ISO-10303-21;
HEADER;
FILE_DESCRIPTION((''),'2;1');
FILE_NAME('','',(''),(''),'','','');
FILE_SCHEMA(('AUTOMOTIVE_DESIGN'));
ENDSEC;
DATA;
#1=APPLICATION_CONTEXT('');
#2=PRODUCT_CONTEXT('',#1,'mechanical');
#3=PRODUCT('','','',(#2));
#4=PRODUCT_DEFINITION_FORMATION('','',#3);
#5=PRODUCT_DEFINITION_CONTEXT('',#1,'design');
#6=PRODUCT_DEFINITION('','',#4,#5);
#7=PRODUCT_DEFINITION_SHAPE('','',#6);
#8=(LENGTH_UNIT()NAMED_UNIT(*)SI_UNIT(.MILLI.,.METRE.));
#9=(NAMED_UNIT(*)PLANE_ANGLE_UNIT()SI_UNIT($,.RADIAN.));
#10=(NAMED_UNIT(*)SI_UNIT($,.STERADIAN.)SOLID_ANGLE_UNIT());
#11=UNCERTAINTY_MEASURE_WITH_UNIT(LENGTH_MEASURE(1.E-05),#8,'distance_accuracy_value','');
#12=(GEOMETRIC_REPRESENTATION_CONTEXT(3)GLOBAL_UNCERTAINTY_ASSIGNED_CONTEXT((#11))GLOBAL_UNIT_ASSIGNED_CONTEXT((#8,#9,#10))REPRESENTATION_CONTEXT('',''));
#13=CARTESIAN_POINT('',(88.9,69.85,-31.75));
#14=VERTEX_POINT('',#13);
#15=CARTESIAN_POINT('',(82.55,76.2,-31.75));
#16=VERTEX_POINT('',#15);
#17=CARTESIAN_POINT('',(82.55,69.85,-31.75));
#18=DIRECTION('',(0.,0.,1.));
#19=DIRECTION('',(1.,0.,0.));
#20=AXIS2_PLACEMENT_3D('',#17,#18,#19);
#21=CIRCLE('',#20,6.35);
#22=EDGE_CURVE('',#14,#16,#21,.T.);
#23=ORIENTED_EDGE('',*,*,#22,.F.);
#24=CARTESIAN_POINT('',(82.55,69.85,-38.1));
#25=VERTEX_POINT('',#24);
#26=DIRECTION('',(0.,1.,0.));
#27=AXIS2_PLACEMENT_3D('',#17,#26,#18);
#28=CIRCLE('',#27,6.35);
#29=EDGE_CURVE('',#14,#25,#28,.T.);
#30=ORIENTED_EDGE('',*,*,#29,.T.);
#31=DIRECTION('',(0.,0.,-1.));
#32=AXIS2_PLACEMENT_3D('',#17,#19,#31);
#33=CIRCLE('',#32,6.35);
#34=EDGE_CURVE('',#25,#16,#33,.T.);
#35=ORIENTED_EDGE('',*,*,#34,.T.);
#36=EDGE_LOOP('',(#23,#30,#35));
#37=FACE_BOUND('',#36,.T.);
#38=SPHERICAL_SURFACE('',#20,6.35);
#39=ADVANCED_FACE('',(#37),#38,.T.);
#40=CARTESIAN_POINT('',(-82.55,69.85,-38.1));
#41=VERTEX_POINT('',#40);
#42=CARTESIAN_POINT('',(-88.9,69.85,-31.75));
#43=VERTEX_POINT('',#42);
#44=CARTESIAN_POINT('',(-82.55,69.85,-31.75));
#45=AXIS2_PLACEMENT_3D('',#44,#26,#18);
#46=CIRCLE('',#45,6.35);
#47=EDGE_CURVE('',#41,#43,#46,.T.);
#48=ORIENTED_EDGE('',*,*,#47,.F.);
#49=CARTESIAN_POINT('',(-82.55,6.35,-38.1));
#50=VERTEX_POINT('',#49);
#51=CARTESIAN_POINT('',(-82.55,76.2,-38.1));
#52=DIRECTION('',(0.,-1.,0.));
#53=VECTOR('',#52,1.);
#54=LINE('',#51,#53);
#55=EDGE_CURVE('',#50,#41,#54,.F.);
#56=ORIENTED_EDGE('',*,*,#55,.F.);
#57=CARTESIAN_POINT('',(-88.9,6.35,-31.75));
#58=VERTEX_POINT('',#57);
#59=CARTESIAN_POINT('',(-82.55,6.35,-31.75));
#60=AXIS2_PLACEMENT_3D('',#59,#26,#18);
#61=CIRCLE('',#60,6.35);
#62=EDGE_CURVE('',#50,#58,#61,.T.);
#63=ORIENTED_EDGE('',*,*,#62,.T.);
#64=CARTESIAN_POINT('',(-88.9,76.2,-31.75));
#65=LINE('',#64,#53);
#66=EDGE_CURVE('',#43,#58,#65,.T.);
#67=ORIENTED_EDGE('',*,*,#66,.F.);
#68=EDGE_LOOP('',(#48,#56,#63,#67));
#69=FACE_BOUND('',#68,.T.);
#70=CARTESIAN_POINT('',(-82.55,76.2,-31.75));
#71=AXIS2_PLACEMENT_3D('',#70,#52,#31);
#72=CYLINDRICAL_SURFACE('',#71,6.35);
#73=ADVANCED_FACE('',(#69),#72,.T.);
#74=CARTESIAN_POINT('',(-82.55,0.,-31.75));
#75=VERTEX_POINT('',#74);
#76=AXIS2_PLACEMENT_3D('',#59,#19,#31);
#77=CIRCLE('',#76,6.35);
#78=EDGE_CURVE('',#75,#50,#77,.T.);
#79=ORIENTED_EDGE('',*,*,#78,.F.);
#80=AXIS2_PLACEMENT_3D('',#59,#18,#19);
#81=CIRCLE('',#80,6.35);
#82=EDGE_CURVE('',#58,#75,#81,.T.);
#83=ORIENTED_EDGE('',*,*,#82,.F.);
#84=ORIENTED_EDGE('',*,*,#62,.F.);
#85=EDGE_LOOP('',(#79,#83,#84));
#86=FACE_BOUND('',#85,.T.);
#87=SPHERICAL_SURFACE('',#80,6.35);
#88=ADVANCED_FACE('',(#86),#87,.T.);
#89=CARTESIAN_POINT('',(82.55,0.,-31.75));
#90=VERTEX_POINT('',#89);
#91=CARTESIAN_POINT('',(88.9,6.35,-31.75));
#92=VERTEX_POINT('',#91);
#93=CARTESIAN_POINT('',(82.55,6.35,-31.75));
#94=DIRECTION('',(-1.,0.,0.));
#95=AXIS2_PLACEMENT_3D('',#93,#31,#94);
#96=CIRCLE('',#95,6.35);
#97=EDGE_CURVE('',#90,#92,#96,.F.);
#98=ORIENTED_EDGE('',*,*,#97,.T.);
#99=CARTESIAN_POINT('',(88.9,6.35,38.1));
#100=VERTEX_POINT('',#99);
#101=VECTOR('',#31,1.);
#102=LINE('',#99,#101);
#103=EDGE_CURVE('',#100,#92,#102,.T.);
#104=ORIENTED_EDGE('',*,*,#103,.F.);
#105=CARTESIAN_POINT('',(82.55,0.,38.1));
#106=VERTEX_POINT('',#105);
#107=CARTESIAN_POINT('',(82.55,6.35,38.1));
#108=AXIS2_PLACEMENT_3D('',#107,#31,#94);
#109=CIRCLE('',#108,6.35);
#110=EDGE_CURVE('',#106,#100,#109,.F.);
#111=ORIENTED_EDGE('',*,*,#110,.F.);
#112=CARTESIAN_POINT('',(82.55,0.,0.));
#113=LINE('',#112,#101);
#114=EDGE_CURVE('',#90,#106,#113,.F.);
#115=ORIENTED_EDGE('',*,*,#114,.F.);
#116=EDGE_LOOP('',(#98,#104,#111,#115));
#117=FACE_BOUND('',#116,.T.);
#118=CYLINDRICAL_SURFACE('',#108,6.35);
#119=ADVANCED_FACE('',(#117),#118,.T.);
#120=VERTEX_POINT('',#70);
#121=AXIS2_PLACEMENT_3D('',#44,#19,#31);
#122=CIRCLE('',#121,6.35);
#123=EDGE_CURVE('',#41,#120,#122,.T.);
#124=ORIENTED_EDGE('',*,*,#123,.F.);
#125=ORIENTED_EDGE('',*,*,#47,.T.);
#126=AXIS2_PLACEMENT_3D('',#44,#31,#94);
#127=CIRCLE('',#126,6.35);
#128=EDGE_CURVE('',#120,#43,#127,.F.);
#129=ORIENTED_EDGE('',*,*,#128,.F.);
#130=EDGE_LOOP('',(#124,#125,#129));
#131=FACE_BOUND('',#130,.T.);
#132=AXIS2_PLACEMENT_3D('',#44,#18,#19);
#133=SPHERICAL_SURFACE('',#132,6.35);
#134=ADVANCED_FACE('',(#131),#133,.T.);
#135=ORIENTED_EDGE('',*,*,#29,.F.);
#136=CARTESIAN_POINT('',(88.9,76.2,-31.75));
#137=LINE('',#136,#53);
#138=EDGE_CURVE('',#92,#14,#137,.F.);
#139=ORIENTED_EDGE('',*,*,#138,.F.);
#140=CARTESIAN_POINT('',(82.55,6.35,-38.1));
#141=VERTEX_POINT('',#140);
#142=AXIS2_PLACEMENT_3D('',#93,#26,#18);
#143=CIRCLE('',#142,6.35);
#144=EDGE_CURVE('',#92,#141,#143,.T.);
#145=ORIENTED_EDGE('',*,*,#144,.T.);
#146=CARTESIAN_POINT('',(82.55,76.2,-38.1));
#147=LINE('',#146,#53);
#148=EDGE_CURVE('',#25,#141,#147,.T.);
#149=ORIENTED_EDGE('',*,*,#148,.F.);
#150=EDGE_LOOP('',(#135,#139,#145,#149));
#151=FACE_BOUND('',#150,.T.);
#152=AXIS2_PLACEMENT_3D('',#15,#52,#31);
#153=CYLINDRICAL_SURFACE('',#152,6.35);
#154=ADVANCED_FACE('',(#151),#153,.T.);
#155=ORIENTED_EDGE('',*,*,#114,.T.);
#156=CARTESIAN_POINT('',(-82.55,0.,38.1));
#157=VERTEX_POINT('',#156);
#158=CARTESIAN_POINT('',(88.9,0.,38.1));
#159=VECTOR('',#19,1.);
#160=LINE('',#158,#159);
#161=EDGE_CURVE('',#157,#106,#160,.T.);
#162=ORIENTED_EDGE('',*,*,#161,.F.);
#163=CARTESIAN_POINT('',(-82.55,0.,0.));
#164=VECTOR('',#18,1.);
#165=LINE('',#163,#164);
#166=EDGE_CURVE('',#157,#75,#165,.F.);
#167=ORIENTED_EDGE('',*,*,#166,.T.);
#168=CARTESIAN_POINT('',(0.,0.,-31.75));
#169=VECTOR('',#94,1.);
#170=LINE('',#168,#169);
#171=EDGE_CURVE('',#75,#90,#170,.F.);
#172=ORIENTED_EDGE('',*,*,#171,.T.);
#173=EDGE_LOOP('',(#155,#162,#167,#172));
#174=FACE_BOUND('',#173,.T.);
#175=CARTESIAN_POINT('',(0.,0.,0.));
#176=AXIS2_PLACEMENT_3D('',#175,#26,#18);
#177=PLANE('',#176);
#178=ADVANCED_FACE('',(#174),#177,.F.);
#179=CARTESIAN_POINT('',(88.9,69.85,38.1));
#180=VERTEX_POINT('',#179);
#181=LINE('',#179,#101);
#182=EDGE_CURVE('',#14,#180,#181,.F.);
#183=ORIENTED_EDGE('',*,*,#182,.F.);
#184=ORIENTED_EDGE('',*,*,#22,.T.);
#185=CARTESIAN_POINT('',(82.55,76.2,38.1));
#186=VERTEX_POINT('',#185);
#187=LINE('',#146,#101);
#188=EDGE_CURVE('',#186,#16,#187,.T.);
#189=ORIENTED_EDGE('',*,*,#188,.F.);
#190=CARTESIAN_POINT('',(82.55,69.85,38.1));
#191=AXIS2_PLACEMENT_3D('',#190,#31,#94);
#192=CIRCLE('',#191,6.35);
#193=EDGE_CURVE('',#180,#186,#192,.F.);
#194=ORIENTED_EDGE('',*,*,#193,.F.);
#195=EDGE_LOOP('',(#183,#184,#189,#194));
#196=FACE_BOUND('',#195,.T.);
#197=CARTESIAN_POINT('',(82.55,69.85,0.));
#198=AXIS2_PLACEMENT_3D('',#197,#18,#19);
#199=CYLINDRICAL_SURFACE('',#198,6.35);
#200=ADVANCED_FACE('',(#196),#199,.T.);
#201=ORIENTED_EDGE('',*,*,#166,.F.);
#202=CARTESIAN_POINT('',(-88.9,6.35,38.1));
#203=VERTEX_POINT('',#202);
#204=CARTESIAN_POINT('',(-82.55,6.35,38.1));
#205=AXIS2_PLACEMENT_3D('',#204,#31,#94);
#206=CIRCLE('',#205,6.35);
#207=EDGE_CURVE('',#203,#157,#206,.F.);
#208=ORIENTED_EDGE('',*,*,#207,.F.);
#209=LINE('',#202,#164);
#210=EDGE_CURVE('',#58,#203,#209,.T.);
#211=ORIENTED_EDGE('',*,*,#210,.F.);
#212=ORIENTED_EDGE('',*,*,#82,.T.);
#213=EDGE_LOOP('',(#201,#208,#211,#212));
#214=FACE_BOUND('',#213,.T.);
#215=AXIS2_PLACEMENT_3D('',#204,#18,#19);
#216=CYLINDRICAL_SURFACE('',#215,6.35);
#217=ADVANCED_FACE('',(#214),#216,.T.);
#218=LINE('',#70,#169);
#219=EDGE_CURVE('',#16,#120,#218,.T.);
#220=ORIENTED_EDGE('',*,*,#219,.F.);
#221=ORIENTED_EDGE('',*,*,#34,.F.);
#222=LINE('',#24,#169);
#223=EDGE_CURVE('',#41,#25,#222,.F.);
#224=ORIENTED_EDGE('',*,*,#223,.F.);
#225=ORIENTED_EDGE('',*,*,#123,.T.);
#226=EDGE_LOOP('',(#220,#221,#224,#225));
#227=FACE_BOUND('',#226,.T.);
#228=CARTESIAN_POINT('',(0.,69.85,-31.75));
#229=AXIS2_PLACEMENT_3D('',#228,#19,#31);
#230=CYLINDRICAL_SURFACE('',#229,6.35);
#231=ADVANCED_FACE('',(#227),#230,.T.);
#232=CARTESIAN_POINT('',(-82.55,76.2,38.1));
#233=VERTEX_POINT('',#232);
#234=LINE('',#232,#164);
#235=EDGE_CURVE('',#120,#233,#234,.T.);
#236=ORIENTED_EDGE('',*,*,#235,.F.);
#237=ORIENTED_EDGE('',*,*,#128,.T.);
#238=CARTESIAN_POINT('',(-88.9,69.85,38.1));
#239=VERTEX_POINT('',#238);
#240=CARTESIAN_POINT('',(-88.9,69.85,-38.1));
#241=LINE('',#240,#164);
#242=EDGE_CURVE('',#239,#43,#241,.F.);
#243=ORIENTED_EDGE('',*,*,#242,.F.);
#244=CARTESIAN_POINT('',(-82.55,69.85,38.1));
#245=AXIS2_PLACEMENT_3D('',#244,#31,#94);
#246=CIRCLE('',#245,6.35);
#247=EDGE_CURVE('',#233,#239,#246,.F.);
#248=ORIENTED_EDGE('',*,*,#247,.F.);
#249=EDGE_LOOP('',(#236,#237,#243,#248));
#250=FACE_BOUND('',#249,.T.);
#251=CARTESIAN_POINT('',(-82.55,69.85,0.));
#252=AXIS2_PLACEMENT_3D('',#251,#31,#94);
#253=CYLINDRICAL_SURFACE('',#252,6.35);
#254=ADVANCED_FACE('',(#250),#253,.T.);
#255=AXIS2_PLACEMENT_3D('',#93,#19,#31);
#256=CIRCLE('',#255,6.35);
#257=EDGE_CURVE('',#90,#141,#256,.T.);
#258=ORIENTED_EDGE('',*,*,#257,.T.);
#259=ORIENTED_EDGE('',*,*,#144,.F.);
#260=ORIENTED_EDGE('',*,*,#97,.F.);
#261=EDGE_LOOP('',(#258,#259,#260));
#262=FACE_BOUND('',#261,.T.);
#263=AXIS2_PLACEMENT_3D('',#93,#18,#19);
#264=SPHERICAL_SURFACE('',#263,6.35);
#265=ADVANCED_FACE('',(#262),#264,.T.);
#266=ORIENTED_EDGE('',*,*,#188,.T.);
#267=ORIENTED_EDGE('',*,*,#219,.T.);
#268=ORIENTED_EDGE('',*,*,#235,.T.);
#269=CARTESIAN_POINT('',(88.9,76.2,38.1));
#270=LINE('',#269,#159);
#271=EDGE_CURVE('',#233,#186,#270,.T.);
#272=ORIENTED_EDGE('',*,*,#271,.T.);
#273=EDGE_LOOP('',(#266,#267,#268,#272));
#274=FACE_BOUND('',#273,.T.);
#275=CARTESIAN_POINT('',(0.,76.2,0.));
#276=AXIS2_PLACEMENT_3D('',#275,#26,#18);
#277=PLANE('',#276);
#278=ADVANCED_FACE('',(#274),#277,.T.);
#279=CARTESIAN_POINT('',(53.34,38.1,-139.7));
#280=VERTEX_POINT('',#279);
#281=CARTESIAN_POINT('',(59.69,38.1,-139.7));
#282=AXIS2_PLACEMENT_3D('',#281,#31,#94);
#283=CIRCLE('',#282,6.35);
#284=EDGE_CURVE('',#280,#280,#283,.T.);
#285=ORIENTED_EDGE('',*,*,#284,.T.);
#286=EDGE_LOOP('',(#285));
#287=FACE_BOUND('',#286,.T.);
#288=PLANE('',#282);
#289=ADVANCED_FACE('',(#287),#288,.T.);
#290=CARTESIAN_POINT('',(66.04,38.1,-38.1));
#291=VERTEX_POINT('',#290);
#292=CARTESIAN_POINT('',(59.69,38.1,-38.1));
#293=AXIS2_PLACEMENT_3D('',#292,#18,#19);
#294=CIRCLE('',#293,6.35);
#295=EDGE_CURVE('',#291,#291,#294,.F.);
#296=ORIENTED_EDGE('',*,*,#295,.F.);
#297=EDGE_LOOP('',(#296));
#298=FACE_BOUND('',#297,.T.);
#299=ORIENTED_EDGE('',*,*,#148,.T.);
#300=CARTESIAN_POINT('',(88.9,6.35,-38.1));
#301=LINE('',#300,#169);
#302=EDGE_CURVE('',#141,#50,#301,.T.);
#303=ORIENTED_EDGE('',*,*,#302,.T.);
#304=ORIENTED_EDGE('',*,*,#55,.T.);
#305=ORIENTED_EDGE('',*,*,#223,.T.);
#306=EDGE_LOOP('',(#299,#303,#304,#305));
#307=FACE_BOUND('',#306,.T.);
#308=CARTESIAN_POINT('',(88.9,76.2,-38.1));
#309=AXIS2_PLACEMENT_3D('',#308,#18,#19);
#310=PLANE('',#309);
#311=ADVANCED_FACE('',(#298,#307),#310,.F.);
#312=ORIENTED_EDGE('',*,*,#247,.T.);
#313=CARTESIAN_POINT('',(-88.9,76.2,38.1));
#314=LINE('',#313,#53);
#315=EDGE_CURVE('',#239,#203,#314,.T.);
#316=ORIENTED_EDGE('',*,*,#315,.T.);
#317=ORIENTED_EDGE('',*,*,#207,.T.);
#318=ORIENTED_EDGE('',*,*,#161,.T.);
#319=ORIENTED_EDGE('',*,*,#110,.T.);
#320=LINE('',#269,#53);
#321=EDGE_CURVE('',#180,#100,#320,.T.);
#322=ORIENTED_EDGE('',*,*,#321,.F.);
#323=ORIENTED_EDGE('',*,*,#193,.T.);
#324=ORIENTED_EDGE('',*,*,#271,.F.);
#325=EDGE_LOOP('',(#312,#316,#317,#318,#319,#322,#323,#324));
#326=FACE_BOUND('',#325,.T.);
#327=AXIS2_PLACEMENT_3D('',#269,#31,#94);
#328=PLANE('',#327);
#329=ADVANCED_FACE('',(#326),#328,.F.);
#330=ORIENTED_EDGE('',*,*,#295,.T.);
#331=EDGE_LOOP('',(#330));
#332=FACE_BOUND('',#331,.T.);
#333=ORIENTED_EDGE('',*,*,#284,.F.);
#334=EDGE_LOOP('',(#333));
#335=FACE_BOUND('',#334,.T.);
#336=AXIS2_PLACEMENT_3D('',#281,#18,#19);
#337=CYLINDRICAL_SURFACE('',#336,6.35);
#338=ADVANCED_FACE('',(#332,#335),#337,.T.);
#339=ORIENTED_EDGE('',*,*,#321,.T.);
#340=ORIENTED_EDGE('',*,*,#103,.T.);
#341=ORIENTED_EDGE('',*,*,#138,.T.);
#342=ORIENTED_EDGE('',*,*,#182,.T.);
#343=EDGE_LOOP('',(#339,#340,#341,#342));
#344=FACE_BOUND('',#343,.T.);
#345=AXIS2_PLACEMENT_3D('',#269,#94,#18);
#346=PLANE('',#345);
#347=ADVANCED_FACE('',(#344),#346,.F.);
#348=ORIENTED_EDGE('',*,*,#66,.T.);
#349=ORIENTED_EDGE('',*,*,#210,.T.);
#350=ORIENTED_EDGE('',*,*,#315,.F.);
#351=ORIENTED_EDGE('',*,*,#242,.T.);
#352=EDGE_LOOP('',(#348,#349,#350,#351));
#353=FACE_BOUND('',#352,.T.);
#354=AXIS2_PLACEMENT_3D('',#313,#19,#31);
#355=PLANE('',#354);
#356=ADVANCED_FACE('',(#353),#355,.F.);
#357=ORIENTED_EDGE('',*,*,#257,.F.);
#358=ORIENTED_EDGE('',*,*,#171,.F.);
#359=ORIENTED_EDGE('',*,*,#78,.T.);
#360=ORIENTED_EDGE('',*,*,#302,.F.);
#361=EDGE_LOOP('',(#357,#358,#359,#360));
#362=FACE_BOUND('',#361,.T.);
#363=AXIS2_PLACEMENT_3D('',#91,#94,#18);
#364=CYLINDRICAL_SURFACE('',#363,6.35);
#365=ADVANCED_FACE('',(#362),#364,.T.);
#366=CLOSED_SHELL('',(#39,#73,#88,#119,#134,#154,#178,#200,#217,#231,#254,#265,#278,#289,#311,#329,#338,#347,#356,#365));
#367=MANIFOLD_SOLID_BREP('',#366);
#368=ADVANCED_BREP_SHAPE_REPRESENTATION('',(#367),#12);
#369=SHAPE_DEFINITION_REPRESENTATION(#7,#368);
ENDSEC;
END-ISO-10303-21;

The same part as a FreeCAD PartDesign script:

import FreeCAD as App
import Part
import Sketcher

V = App.Vector
Q = App.Units.Quantity


def edges_at(feature, points):
    """Names of the edges that pass closest to the given points."""
    edges = feature.Shape.Edges
    near = lambda p: min(range(len(edges)), key=lambda i: edges[i].distToShape(Part.Vertex(*p))[0])
    return sorted({f"Edge{near(p) + 1}" for p in points})

doc = App.newDocument("Part")
body = doc.addObject("PartDesign::Body", "Body")

# Sketch on XZ plane
sketch1 = body.newObject("Sketcher::SketchObject", "Sketch")
sketch1.AttachmentSupport = (doc.getObject("XZ_Plane"), [""])
sketch1.MapMode = "FlatFace"
sketch1.addGeometry(Part.LineSegment(V(-89, -38, 0), V(-89, 38, 0)), False)
sketch1.addGeometry(Part.LineSegment(V(-89, 38, 0), V(89, 38, 0)), False)
sketch1.addGeometry(Part.LineSegment(V(89, 38, 0), V(89, -38, 0)), False)
sketch1.addGeometry(Part.LineSegment(V(89, -38, 0), V(-89, -38, 0)), False)
sketch1.addConstraint(Sketcher.Constraint("Coincident", 0, 2, 1, 1))
sketch1.addConstraint(Sketcher.Constraint("Coincident", 1, 2, 2, 1))
sketch1.addConstraint(Sketcher.Constraint("Coincident", 2, 2, 3, 1))
sketch1.addConstraint(Sketcher.Constraint("Coincident", 3, 2, 0, 1))
sketch1.addConstraint(Sketcher.Constraint("Vertical", 0))
sketch1.addConstraint(Sketcher.Constraint("Horizontal", 1))
sketch1.addConstraint(Sketcher.Constraint("Vertical", 2))
sketch1.addConstraint(Sketcher.Constraint("Horizontal", 3))
sketch1.addConstraint(Sketcher.Constraint("Symmetric", 0, 2, 2, 2, -1, 1))
sketch1.addConstraint(Sketcher.Constraint("DistanceX", 1, 1, 1, 2, Q("7 in")))
sketch1.addConstraint(Sketcher.Constraint("DistanceY", 0, 1, 0, 2, Q("3 in")))
pad1 = body.newObject("PartDesign::Pad", "Pad")
pad1.Profile = sketch1
pad1.Length = Q("3 in")
pad1.Reversed = True
doc.recompute()

fillet = body.newObject("PartDesign::Fillet", "Fillet")
fillet.Base = (pad1, edges_at(pad1, [
    (88.9, 76.2, 0),
    (-88.9, 76.2, 0),
    (88.9, 0, 0),
    (-88.9, 0, 0),
]))
fillet.Radius = Q("0.25 in")

# Sketch on XY plane
sketch2 = body.newObject("Sketcher::SketchObject", "Sketch001")
sketch2.AttachmentSupport = (doc.getObject("XY_Plane"), [""])
sketch2.MapMode = "FlatFace"
sketch2.AttachmentOffset = App.Placement(V(0, 0, -1.5 * 25.4), App.Rotation())
sketch2.addGeometry(Part.Circle(V(60, 38, 0), V(0, 0, 1), 6), False)
sketch2.addConstraint(Sketcher.Constraint("Diameter", 0, Q("0.5 in")))
sketch2.addConstraint(Sketcher.Constraint("DistanceY", -1, 1, 0, 3, Q("1.5 in")))
sketch2.addConstraint(Sketcher.Constraint("DistanceX", -1, 1, 0, 3, Q("2.35 in")))
pad2 = body.newObject("PartDesign::Pad", "Pad001")
pad2.Profile = sketch2
pad2.Length = Q("4 in")
pad2.Reversed = True
doc.recompute()

fillet2 = body.newObject("PartDesign::Fillet", "Fillet001")
fillet2.Base = (pad2, edges_at(pad2, [
    (-88.9, 38.1, -38.1),
    (0, 0, -38.1),
    (0, 76.2, -38.1),
    (88.9, 38.1, -38.1),
    (87.04, 74.34, -38.1),
    (-87.04, 74.34, -38.1),
    (87.04, 1.86, -38.1),
    (-87.04, 1.86, -38.1),
]))
fillet2.Radius = Q("0.25 in")

doc.recompute()
